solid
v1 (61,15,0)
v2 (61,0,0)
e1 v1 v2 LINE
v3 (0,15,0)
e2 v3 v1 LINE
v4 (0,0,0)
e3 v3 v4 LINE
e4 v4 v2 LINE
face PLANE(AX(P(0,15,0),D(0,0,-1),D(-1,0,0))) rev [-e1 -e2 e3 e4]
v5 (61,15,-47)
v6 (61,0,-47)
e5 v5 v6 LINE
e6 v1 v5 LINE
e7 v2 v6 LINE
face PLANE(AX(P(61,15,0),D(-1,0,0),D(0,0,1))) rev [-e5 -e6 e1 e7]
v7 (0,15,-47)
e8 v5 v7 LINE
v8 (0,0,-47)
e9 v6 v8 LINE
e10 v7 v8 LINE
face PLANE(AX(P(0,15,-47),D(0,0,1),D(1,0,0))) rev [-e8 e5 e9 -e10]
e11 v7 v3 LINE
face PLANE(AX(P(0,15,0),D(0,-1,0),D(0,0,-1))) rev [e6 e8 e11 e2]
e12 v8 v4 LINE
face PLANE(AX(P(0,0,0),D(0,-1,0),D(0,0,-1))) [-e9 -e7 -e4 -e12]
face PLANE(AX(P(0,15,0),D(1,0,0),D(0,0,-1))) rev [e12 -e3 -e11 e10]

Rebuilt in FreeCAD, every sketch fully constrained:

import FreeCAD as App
import Part
import Sketcher

V = App.Vector

doc = App.newDocument("Part")
body = doc.addObject("PartDesign::Body", "Body")

sketch1 = doc.addObject("Sketcher::SketchObject", "Sketch")
body.addObject(sketch1)
sketch1.AttachmentSupport = (doc.XZ_Plane, [""])
sketch1.MapMode = "FlatFace"
sketch1.addGeometry(Part.LineSegment(V(0, -47, 0), V(0, 0, 0)), False)
sketch1.addGeometry(Part.LineSegment(V(0, 0, 0), V(61, 0, 0)), False)
sketch1.addGeometry(Part.LineSegment(V(61, 0, 0), V(61, -47, 0)), False)
sketch1.addGeometry(Part.LineSegment(V(61, -47, 0), V(0, -47, 0)), False)
sketch1.addConstraint(Sketcher.Constraint("Coincident", 0, 2, 1, 1))
sketch1.addConstraint(Sketcher.Constraint("Coincident", 1, 2, 2, 1))
sketch1.addConstraint(Sketcher.Constraint("Coincident", 2, 2, 3, 1))
sketch1.addConstraint(Sketcher.Constraint("Coincident", 3, 2, 0, 1))
sketch1.addConstraint(Sketcher.Constraint("Vertical", 0))
sketch1.addConstraint(Sketcher.Constraint("Horizontal", 1))
sketch1.addConstraint(Sketcher.Constraint("Vertical", 2))
sketch1.addConstraint(Sketcher.Constraint("Horizontal", 3))
sketch1.addConstraint(Sketcher.Constraint("Coincident", 0, 2, -1, 1))
sketch1.addConstraint(Sketcher.Constraint("DistanceX", 1, 1, 1, 2, 61.0))
sketch1.addConstraint(Sketcher.Constraint("DistanceY", 0, 1, 0, 2, 47.0))
pad1 = doc.addObject("PartDesign::Pad", "Pad")
body.addObject(pad1)
pad1.Profile = sketch1
pad1.Length = 15
pad1.Reversed = True

doc.recompute()
